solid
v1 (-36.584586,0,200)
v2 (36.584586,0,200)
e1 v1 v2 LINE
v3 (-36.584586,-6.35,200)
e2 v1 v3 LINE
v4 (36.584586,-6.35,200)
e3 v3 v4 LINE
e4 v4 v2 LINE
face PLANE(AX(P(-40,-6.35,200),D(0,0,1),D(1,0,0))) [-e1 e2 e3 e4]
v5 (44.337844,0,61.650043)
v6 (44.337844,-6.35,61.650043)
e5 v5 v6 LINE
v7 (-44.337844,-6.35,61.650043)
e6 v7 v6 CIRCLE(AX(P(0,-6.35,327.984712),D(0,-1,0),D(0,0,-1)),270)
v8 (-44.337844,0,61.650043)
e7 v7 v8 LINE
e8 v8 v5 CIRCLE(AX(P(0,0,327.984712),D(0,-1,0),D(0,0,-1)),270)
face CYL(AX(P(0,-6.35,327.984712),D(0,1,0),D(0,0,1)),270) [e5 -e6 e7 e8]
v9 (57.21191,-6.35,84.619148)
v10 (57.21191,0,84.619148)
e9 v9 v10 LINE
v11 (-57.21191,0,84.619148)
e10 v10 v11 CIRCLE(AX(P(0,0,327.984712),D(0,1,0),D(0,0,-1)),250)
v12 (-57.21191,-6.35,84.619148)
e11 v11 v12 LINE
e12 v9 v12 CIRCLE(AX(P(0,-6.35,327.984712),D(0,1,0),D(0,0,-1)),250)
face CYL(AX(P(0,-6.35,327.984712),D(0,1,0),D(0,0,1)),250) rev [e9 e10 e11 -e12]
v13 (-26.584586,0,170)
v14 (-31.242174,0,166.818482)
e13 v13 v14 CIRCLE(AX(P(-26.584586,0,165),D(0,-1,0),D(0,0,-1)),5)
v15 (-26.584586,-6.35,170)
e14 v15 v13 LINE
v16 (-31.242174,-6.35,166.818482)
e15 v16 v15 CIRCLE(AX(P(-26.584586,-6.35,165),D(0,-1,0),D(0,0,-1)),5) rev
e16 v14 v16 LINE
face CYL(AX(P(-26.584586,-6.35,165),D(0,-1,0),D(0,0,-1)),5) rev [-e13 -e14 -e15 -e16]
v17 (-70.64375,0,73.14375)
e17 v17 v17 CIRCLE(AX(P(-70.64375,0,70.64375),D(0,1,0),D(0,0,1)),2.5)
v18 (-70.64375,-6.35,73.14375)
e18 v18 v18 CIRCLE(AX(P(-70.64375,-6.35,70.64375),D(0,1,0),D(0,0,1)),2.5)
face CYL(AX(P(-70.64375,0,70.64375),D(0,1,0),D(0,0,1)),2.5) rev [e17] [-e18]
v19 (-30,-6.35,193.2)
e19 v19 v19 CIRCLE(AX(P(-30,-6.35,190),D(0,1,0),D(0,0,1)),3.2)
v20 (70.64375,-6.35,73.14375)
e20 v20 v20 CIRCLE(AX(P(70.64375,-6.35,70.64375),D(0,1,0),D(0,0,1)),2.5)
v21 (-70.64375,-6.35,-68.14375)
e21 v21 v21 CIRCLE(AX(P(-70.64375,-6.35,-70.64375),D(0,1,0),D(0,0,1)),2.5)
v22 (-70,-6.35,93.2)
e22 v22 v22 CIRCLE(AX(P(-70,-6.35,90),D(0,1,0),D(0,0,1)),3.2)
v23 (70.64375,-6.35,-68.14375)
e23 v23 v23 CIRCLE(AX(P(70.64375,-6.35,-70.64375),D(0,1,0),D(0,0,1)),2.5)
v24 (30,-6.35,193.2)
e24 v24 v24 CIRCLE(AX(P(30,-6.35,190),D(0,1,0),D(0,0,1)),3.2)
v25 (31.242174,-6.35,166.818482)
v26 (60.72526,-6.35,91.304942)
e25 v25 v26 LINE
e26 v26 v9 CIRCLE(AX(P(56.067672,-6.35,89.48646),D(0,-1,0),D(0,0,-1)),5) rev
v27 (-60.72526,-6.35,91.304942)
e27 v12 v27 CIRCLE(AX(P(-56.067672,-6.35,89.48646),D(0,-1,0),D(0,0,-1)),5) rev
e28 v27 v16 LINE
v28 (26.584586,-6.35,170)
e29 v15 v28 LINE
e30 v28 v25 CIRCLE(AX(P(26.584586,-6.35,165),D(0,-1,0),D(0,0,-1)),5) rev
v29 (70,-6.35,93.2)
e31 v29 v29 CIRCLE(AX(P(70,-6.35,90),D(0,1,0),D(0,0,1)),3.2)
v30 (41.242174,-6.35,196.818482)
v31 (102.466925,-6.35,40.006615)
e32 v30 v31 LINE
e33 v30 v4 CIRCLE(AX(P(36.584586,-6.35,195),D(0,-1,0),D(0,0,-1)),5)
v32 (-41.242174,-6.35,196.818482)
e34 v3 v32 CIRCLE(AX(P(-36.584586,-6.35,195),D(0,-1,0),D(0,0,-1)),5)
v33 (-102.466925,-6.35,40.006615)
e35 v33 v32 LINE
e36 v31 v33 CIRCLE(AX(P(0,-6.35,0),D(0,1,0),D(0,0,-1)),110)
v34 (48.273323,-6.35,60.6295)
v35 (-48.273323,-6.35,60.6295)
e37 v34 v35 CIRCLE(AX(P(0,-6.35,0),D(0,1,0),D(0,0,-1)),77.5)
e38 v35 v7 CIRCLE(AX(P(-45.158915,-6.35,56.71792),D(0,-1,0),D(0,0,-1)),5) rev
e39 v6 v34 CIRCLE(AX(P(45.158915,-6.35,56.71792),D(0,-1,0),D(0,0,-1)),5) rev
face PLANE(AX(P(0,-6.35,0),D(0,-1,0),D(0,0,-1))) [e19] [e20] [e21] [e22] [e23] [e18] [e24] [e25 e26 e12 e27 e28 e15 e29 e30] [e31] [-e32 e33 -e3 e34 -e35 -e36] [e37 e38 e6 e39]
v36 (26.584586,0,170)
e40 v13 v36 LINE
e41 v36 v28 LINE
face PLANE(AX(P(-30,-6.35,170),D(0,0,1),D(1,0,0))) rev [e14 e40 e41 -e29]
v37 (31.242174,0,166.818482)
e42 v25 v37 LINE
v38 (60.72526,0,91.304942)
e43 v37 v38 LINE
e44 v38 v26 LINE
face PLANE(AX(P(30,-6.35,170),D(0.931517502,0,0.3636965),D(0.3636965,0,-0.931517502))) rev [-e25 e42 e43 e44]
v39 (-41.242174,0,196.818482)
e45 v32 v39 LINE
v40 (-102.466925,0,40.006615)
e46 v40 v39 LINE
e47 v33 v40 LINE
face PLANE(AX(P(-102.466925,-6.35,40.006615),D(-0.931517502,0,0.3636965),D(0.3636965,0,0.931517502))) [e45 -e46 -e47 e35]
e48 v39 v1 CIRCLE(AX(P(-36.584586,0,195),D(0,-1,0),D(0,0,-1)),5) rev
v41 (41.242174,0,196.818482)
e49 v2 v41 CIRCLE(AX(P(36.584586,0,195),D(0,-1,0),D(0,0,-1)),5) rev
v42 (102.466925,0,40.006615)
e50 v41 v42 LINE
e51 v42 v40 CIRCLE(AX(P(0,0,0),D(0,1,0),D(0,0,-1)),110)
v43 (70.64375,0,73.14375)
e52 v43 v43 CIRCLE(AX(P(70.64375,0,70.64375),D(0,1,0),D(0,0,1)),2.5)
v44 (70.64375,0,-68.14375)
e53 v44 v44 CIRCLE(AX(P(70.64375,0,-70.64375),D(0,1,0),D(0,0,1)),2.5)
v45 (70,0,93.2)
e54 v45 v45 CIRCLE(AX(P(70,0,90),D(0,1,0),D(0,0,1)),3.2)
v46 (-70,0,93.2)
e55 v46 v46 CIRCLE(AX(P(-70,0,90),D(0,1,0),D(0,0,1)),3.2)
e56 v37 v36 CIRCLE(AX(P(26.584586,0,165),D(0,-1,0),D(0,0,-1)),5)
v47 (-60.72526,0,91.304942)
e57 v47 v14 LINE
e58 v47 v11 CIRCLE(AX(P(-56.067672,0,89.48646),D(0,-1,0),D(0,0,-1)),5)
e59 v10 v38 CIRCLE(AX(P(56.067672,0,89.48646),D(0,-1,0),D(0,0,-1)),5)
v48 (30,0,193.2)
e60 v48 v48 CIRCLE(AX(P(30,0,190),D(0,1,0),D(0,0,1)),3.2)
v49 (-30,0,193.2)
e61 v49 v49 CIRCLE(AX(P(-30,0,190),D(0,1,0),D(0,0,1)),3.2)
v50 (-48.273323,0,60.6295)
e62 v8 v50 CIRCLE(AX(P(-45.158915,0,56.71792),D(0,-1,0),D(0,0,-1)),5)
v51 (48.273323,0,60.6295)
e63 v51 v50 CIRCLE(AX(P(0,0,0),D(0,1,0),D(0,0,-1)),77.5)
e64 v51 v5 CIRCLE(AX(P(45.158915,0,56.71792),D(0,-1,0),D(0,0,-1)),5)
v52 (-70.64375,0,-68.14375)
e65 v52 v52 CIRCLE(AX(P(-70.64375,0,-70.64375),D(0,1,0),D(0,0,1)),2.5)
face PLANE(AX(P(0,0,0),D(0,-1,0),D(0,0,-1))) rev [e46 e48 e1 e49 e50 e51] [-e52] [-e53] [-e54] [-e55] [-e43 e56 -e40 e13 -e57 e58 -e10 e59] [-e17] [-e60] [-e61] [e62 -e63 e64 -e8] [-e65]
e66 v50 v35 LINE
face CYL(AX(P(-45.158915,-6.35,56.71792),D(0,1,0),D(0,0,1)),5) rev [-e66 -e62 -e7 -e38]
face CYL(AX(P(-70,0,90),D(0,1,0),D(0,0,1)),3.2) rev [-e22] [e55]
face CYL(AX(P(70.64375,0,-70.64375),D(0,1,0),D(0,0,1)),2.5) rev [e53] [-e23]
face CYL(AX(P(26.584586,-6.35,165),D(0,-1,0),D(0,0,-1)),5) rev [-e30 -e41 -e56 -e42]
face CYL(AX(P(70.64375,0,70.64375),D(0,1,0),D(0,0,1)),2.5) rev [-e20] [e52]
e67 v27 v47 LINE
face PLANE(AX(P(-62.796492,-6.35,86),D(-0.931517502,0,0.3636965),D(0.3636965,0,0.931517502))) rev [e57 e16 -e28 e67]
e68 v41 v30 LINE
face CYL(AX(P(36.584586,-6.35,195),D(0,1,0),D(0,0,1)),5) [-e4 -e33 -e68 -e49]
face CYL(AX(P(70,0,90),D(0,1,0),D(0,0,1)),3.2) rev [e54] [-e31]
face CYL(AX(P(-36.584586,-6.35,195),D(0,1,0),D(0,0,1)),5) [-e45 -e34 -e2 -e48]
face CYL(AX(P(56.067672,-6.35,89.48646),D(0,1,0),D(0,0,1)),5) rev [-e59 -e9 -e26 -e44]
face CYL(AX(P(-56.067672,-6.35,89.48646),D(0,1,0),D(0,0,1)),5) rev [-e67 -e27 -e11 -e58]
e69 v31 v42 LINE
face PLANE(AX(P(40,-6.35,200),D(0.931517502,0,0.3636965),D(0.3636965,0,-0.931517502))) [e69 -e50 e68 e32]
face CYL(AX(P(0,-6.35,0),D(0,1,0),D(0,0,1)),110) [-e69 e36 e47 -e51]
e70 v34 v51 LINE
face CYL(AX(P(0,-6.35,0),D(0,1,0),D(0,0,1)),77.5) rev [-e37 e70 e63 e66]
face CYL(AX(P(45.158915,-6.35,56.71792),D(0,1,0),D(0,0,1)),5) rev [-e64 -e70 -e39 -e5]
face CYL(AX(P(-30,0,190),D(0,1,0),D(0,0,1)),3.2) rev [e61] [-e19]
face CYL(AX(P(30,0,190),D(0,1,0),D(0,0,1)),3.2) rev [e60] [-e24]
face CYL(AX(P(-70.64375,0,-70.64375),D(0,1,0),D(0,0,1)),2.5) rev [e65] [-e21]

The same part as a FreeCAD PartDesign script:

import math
import FreeCAD as App
import Part
import Sketcher

V = App.Vector
Q = App.Units.Quantity


def edges_at(feature, points):
    """Names of the edges that pass closest to the given points."""
    edges = feature.Shape.Edges
    near = lambda p: min(range(len(edges)), key=lambda i: edges[i].distToShape(Part.Vertex(*p))[0])
    return sorted({f"Edge{near(p) + 1}" for p in points})

doc = App.newDocument("Part")
body = doc.addObject("PartDesign::Body", "Body")

# Sketch on XZ plane
sketch1 = body.newObject("Sketcher::SketchObject", "Sketch")
sketch1.AttachmentSupport = (doc.getObject("XZ_Plane"), [""])
sketch1.MapMode = "FlatFace"
sketch1.addGeometry(Part.LineSegment(V(-102, 40, 0), V(-40, 200, 0)), False)
sketch1.addGeometry(Part.LineSegment(V(-40, 200, 0), V(40, 200, 0)), False)
sketch1.addGeometry(Part.LineSegment(V(40, 200, 0), V(102, 40, 0)), False)
sketch1.addGeometry(Part.ArcOfCircle(Part.Circle(V(0, 0, 0), V(0, 0, 1), 110), math.radians(159), math.radians(381)), False)
sketch1.addGeometry(Part.LineSegment(V(30, 170, 0), V(-30, 170, 0)), False)
sketch1.addGeometry(Part.LineSegment(V(-30, 170, 0), V(-63, 86, 0)), False)
sketch1.addGeometry(Part.ArcOfCircle(Part.Circle(V(0, 328, 0), V(0, 0, 1), 250), math.radians(-105), math.radians(-75)), False)
sketch1.addGeometry(Part.LineSegment(V(63, 86, 0), V(30, 170, 0)), False)
sketch1.addGeometry(Part.ArcOfCircle(Part.Circle(V(0, 328, 0), V(0, 0, 1), 270), math.radians(-99.91), math.radians(-80.09)), False)
sketch1.addGeometry(Part.ArcOfCircle(Part.Circle(V(0, 0, 0), V(0, 0, 1), 78), math.radians(127), math.radians(413)), False)
sketch1.addConstraint(Sketcher.Constraint("Coincident", 0, 2, 1, 1))
sketch1.addConstraint(Sketcher.Constraint("Coincident", 1, 2, 2, 1))
sketch1.addConstraint(Sketcher.Constraint("Tangent", 2, 2, 3, 2))
sketch1.addConstraint(Sketcher.Constraint("Tangent", 3, 1, 0, 1))
sketch1.addConstraint(Sketcher.Constraint("Coincident", 4, 2, 5, 1))
sketch1.addConstraint(Sketcher.Constraint("Coincident", 5, 2, 6, 1))
sketch1.addConstraint(Sketcher.Constraint("Coincident", 6, 2, 7, 1))
sketch1.addConstraint(Sketcher.Constraint("Coincident", 7, 2, 4, 1))
sketch1.addConstraint(Sketcher.Constraint("Coincident", 8, 1, 9, 1))
sketch1.addConstraint(Sketcher.Constraint("Coincident", 9, 2, 8, 2))
sketch1.addConstraint(Sketcher.Constraint("Horizontal", 1))
sketch1.addConstraint(Sketcher.Constraint("Horizontal", 4))
sketch1.addConstraint(Sketcher.Constraint("Coincident", 3, 3, -1, 1))
sketch1.addConstraint(Sketcher.Constraint("Coincident", 9, 3, -1, 1))
sketch1.addConstraint(Sketcher.Constraint("Coincident", 8, 3, 6, 3))
sketch1.addConstraint(Sketcher.Constraint("Symmetric", 5, 2, 6, 2, -2))
sketch1.addConstraint(Sketcher.Constraint("Parallel", 0, 5))
sketch1.addConstraint(Sketcher.Constraint("Parallel", 2, 7))
sketch1.addConstraint(Sketcher.Constraint("Horizontal", 2, 2, 3, 1))
sketch1.addConstraint(Sketcher.Constraint("Radius", 3, Q("110 mm")))
sketch1.addConstraint(Sketcher.Constraint("Radius", 6, Q("250 mm")))
sketch1.addConstraint(Sketcher.Constraint("Radius", 8, Q("270 mm")))
sketch1.addConstraint(Sketcher.Constraint("Radius", 9, Q("77.5 mm")))
sketch1.addConstraint(Sketcher.Constraint("DistanceX", 1, 1, 1, 2, Q("80 mm")))
sketch1.addConstraint(Sketcher.Constraint("DistanceX", 4, 2, 4, 1, Q("60 mm")))
sketch1.addConstraint(Sketcher.Constraint("DistanceY", -1, 1, 0, 2, Q("200 mm")))
sketch1.addConstraint(Sketcher.Constraint("DistanceY", -1, 1, 4, 2, Q("170 mm")))
sketch1.addConstraint(Sketcher.Constraint("DistanceY", -1, 1, 5, 2, Q("86 mm")))
pad1 = body.newObject("PartDesign::Pad", "Pad")
pad1.Profile = sketch1
pad1.Length = 6.35

# Sketch on XZ plane
sketch2 = body.newObject("Sketcher::SketchObject", "Sketch001")
sketch2.AttachmentSupport = (doc.getObject("XZ_Plane"), [""])
sketch2.MapMode = "FlatFace"
sketch2.addGeometry(Part.Circle(V(-70, 90, 0), V(0, 0, 1), 3.2), False)
sketch2.addGeometry(Part.Circle(V(-30, 190, 0), V(0, 0, 1), 3.2), False)
sketch2.addGeometry(Part.Circle(V(30, 190, 0), V(0, 0, 1), 3.2), False)
sketch2.addGeometry(Part.Circle(V(70, 90, 0), V(0, 0, 1), 3.2), False)
sketch2.addConstraint(Sketcher.Constraint("Equal", 0, 1))
sketch2.addConstraint(Sketcher.Constraint("Equal", 1, 2))
sketch2.addConstraint(Sketcher.Constraint("Equal", 2, 3))
sketch2.addConstraint(Sketcher.Constraint("Symmetric", 1, 3, 2, 3, -2))
sketch2.addConstraint(Sketcher.Constraint("Symmetric", 0, 3, 3, 3, -2))
sketch2.addConstraint(Sketcher.Constraint("Diameter", 0, Q("6.4 mm")))
sketch2.addConstraint(Sketcher.Constraint("DistanceX", 0, 3, -1, 1, Q("70 mm")))
sketch2.addConstraint(Sketcher.Constraint("DistanceY", -1, 1, 0, 3, Q("90 mm")))
sketch2.addConstraint(Sketcher.Constraint("DistanceX", 1, 3, -1, 1, Q("30 mm")))
sketch2.addConstraint(Sketcher.Constraint("DistanceY", -1, 1, 1, 3, Q("190 mm")))
doc.recompute()
hole = body.newObject("PartDesign::Hole", "Hole")
hole.Profile = sketch2
hole.ThreadType = "None"
hole.Diameter = 6.4
hole.DepthType = "ThroughAll"
hole.Reversed = True

# Sketch on XZ plane
sketch3 = body.newObject("Sketcher::SketchObject", "Sketch002")
sketch3.AttachmentSupport = (doc.getObject("XZ_Plane"), [""])
sketch3.MapMode = "FlatFace"
sketch3.addGeometry(Part.Circle(V(-70.6, 70.6, 0), V(0, 0, 1), 2.5), False)
sketch3.addGeometry(Part.Circle(V(-70.6, -70.6, 0), V(0, 0, 1), 2.5), False)
sketch3.addGeometry(Part.Circle(V(70.6, -70.6, 0), V(0, 0, 1), 2.5), False)
sketch3.addGeometry(Part.Circle(V(70.6, 70.6, 0), V(0, 0, 1), 2.5), False)
sketch3.addConstraint(Sketcher.Constraint("Equal", 0, 1))
sketch3.addConstraint(Sketcher.Constraint("Equal", 1, 2))
sketch3.addConstraint(Sketcher.Constraint("Equal", 2, 3))
sketch3.addConstraint(Sketcher.Constraint("Symmetric", 0, 3, 2, 3, -1, 1))
sketch3.addConstraint(Sketcher.Constraint("Symmetric", 1, 3, 3, 3, -1, 1))
sketch3.addConstraint(Sketcher.Constraint("Symmetric", 1, 3, 2, 3, -2))
sketch3.addConstraint(Sketcher.Constraint("Diameter", 0, Q("5 mm")))
sketch3.addConstraint(Sketcher.Constraint("DistanceY", 1, 3, 0, 3, Q("141.2875 mm")))
sketch3.addConstraint(Sketcher.Constraint("DistanceX", 1, 3, 2, 3, Q("141.2875 mm")))
doc.recompute()
hole2 = body.newObject("PartDesign::Hole", "Hole001")
hole2.Profile = sketch3
hole2.ThreadType = "None"
hole2.Diameter = 5
hole2.DepthType = "ThroughAll"
hole2.Reversed = True
doc.recompute()

fillet = body.newObject("PartDesign::Fillet", "Fillet")
fillet.Base = (hole2, edges_at(hole2, [
    (-46.479, -3.175, 62.015),
    (46.479, -3.175, 62.015),
    (-30, -3.175, 170),
    (-62.796, -3.175, 86),
    (62.796, -3.175, 86),
    (30, -3.175, 170),
]))
fillet.Radius = 5
doc.recompute()

fillet2 = body.newObject("PartDesign::Fillet", "Fillet001")
fillet2.Base = (fillet, edges_at(fillet, [(40, -3.175, 200), (-40, -3.175, 200)]))
fillet2.Radius = 5

doc.recompute()
